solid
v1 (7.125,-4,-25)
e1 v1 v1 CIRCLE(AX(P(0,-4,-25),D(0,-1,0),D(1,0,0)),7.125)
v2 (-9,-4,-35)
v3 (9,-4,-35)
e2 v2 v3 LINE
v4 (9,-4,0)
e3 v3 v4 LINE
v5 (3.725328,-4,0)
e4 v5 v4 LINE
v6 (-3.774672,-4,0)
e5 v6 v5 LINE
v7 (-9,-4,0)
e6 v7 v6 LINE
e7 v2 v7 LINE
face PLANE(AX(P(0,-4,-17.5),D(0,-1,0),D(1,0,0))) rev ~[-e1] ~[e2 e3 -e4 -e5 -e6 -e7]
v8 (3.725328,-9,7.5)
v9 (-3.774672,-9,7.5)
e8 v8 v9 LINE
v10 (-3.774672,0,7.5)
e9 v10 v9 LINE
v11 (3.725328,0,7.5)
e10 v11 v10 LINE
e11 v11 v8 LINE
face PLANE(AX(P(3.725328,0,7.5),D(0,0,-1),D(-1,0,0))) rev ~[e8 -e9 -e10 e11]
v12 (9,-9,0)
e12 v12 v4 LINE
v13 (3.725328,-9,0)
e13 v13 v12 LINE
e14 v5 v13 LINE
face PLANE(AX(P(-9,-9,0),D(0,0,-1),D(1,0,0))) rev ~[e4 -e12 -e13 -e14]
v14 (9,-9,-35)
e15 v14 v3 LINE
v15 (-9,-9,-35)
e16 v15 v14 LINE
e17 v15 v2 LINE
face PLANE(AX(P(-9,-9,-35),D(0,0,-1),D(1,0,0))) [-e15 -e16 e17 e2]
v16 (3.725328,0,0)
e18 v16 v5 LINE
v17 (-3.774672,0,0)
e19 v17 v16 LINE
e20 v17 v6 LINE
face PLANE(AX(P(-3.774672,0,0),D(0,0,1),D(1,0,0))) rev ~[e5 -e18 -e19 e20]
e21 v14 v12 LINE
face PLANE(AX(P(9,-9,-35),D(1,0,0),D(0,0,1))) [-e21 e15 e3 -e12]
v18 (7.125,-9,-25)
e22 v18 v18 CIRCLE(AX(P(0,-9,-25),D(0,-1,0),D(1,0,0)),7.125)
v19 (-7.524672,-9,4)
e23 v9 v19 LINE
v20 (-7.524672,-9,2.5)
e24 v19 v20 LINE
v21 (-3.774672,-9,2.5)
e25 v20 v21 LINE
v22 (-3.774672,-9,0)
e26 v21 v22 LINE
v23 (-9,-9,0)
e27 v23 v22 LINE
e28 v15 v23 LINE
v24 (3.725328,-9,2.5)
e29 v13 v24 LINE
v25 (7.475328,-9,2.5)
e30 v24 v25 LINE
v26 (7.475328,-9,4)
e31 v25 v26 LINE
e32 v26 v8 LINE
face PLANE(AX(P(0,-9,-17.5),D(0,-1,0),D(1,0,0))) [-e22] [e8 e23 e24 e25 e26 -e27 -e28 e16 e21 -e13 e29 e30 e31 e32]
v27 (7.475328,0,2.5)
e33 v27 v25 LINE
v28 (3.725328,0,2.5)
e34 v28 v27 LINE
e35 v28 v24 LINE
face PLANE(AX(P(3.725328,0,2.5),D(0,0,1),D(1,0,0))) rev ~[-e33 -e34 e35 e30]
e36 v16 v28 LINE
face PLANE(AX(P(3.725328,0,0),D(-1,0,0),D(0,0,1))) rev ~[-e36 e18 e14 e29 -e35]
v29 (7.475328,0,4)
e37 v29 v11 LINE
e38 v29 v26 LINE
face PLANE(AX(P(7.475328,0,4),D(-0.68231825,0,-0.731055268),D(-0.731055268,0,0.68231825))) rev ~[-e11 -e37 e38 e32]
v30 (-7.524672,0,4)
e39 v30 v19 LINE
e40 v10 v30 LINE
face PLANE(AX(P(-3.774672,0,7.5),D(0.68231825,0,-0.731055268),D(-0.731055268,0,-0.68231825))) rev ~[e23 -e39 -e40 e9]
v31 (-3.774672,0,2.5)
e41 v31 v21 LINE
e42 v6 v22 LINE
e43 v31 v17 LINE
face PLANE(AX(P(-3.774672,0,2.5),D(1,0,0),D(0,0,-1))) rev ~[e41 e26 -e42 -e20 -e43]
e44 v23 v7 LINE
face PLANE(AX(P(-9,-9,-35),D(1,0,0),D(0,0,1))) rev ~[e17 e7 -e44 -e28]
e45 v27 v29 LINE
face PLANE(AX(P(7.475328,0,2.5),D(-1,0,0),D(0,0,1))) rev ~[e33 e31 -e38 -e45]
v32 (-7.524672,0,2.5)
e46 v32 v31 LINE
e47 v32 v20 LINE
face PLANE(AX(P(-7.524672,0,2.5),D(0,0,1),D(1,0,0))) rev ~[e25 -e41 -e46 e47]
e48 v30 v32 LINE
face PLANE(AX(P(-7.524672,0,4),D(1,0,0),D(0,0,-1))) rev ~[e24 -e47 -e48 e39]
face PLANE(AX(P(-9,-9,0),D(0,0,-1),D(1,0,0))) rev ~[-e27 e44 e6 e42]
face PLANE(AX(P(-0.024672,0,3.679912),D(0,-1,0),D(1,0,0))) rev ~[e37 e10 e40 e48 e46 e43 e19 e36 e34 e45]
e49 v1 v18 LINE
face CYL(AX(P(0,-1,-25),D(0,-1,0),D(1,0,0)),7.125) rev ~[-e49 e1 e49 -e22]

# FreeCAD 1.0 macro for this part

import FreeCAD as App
import Part
import Sketcher
from FreeCAD import Vector

doc = App.newDocument("Part")
body = doc.addObject("PartDesign::Body", "Body")

sketch1 = body.newObject("Sketcher::SketchObject", "Sketch")
sketch1.AttachmentSupport = (doc.getObject("XZ_Plane"), [""])
sketch1.MapMode = "FlatFace"
sketch1.addGeometry([
    Part.LineSegment(Vector(-3.8, 2.5, 0), Vector(-3.8, 0, 0)),
    Part.LineSegment(Vector(-3.8, 0, 0), Vector(3.7, 0, 0)),
    Part.LineSegment(Vector(3.7, 0, 0), Vector(3.7, 2.5, 0)),
    Part.LineSegment(Vector(3.7, 2.5, 0), Vector(7.5, 2.5, 0)),
    Part.LineSegment(Vector(7.5, 2.5, 0), Vector(7.5, 4, 0)),
    Part.LineSegment(Vector(7.5, 4, 0), Vector(3.7, 7.5, 0)),
    Part.LineSegment(Vector(3.7, 7.5, 0), Vector(-3.8, 7.5, 0)),
    Part.LineSegment(Vector(-3.8, 7.5, 0), Vector(-7.5, 4, 0)),
    Part.LineSegment(Vector(-7.5, 4, 0), Vector(-7.5, 2.5, 0)),
    Part.LineSegment(Vector(-7.5, 2.5, 0), Vector(-3.8, 2.5, 0)),
], False)
sketch1.addConstraint([
    Sketcher.Constraint("Coincident", 0, 2, 1, 1),
    Sketcher.Constraint("Coincident", 1, 2, 2, 1),
    Sketcher.Constraint("Coincident", 2, 2, 3, 1),
    Sketcher.Constraint("Coincident", 3, 2, 4, 1),
    Sketcher.Constraint("Coincident", 4, 2, 5, 1),
    Sketcher.Constraint("Coincident", 5, 2, 6, 1),
    Sketcher.Constraint("Coincident", 6, 2, 7, 1),
    Sketcher.Constraint("Coincident", 7, 2, 8, 1),
    Sketcher.Constraint("Coincident", 8, 2, 9, 1),
    Sketcher.Constraint("Coincident", 9, 2, 0, 1),
    Sketcher.Constraint("Vertical", 0),
    Sketcher.Constraint("Horizontal", 1),
    Sketcher.Constraint("Vertical", 2),
    Sketcher.Constraint("Horizontal", 3),
    Sketcher.Constraint("Vertical", 4),
    Sketcher.Constraint("Horizontal", 6),
    Sketcher.Constraint("Vertical", 8),
    Sketcher.Constraint("Horizontal", 9),
    Sketcher.Constraint("PointOnObject", 0, 2, -1),
    Sketcher.Constraint("Horizontal", 4, 2, 7, 2),
    Sketcher.Constraint("Horizontal", 3, 2, 8, 2),
    Sketcher.Constraint("Vertical", 2, 2, 5, 2),
    Sketcher.Constraint("Vertical", 0, 2, 6, 2),
    Sketcher.Constraint("Equal", 3, 9),
    Sketcher.Constraint("DistanceX", 1, 1, 1, 2, 7.5),
    Sketcher.Constraint("DistanceY", 0, 2, 0, 1, 2.5),
    Sketcher.Constraint("DistanceY", 4, 1, 4, 2, 1.5),
    Sketcher.Constraint("DistanceY", 2, 2, 5, 2, 5.0),
    Sketcher.Constraint("DistanceX", 3, 1, 3, 2, 3.75),
    Sketcher.Constraint("DistanceX", 0, 2, -1, 1, 3.774672),
])
pad1 = body.newObject("PartDesign::Pad", "Pad")
pad1.Profile = sketch1
pad1.Length = 9

sketch2 = body.newObject("Sketcher::SketchObject", "Sketch001")
sketch2.AttachmentSupport = (doc.getObject("XZ_Plane"), [""])
sketch2.MapMode = "FlatFace"
sketch2.AttachmentOffset = App.Placement(Vector(0, 0, 9), App.Rotation())
sketch2.addGeometry([
    Part.LineSegment(Vector(-9, 0, 0), Vector(-9, -35, 0)),
    Part.LineSegment(Vector(-9, -35, 0), Vector(9, -35, 0)),
    Part.LineSegment(Vector(9, -35, 0), Vector(9, 0, 0)),
    Part.LineSegment(Vector(9, 0, 0), Vector(-9, 0, 0)),
], False)
sketch2.addConstraint([
    Sketcher.Constraint("Coincident", 0, 2, 1, 1),
    Sketcher.Constraint("Coincident", 1, 2, 2, 1),
    Sketcher.Constraint("Coincident", 2, 2, 3, 1),
    Sketcher.Constraint("Coincident", 3, 2, 0, 1),
    Sketcher.Constraint("Vertical", 0),
    Sketcher.Constraint("Horizontal", 1),
    Sketcher.Constraint("Vertical", 2),
    Sketcher.Constraint("Horizontal", 3),
    Sketcher.Constraint("Symmetric", 2, 2, 3, 2, -1, 1),
    Sketcher.Constraint("DistanceX", 1, 1, 1, 2, 18.0),
    Sketcher.Constraint("DistanceY", 0, 2, 0, 1, 35.0),
])
pad2 = body.newObject("PartDesign::Pad", "Pad001")
pad2.Profile = sketch2
pad2.Length = 5
pad2.Reversed = True

sketch3 = body.newObject("Sketcher::SketchObject", "Sketch002")
sketch3.AttachmentSupport = (doc.getObject("XZ_Plane"), [""])
sketch3.MapMode = "FlatFace"
sketch3.AttachmentOffset = App.Placement(Vector(0, 0, 9), App.Rotation())
sketch3.addGeometry(Part.Circle(Vector(0, -25, 0), Vector(0, 0, 1), 4.4), False)
sketch3.addConstraint([
    Sketcher.Constraint("PointOnObject", 0, 3, -2),
    Sketcher.Constraint("Diameter", 0, 8.8),
    Sketcher.Constraint("DistanceY", 0, 3, -1, 1, 25.0),
])
doc.recompute()
hole = body.newObject("PartDesign::Hole", "Hole")
hole.Profile = sketch3
hole.ThreadType = "None"
hole.Diameter = 8.8
hole.DepthType = "Dimension"
hole.Depth = 10
hole.DrillPoint = "Angled"
hole.DrillPointAngle = 118
hole.HoleCutType = "Counterbore"
hole.HoleCutDiameter = 14.25
hole.HoleCutDepth = 8

doc.recompute()
